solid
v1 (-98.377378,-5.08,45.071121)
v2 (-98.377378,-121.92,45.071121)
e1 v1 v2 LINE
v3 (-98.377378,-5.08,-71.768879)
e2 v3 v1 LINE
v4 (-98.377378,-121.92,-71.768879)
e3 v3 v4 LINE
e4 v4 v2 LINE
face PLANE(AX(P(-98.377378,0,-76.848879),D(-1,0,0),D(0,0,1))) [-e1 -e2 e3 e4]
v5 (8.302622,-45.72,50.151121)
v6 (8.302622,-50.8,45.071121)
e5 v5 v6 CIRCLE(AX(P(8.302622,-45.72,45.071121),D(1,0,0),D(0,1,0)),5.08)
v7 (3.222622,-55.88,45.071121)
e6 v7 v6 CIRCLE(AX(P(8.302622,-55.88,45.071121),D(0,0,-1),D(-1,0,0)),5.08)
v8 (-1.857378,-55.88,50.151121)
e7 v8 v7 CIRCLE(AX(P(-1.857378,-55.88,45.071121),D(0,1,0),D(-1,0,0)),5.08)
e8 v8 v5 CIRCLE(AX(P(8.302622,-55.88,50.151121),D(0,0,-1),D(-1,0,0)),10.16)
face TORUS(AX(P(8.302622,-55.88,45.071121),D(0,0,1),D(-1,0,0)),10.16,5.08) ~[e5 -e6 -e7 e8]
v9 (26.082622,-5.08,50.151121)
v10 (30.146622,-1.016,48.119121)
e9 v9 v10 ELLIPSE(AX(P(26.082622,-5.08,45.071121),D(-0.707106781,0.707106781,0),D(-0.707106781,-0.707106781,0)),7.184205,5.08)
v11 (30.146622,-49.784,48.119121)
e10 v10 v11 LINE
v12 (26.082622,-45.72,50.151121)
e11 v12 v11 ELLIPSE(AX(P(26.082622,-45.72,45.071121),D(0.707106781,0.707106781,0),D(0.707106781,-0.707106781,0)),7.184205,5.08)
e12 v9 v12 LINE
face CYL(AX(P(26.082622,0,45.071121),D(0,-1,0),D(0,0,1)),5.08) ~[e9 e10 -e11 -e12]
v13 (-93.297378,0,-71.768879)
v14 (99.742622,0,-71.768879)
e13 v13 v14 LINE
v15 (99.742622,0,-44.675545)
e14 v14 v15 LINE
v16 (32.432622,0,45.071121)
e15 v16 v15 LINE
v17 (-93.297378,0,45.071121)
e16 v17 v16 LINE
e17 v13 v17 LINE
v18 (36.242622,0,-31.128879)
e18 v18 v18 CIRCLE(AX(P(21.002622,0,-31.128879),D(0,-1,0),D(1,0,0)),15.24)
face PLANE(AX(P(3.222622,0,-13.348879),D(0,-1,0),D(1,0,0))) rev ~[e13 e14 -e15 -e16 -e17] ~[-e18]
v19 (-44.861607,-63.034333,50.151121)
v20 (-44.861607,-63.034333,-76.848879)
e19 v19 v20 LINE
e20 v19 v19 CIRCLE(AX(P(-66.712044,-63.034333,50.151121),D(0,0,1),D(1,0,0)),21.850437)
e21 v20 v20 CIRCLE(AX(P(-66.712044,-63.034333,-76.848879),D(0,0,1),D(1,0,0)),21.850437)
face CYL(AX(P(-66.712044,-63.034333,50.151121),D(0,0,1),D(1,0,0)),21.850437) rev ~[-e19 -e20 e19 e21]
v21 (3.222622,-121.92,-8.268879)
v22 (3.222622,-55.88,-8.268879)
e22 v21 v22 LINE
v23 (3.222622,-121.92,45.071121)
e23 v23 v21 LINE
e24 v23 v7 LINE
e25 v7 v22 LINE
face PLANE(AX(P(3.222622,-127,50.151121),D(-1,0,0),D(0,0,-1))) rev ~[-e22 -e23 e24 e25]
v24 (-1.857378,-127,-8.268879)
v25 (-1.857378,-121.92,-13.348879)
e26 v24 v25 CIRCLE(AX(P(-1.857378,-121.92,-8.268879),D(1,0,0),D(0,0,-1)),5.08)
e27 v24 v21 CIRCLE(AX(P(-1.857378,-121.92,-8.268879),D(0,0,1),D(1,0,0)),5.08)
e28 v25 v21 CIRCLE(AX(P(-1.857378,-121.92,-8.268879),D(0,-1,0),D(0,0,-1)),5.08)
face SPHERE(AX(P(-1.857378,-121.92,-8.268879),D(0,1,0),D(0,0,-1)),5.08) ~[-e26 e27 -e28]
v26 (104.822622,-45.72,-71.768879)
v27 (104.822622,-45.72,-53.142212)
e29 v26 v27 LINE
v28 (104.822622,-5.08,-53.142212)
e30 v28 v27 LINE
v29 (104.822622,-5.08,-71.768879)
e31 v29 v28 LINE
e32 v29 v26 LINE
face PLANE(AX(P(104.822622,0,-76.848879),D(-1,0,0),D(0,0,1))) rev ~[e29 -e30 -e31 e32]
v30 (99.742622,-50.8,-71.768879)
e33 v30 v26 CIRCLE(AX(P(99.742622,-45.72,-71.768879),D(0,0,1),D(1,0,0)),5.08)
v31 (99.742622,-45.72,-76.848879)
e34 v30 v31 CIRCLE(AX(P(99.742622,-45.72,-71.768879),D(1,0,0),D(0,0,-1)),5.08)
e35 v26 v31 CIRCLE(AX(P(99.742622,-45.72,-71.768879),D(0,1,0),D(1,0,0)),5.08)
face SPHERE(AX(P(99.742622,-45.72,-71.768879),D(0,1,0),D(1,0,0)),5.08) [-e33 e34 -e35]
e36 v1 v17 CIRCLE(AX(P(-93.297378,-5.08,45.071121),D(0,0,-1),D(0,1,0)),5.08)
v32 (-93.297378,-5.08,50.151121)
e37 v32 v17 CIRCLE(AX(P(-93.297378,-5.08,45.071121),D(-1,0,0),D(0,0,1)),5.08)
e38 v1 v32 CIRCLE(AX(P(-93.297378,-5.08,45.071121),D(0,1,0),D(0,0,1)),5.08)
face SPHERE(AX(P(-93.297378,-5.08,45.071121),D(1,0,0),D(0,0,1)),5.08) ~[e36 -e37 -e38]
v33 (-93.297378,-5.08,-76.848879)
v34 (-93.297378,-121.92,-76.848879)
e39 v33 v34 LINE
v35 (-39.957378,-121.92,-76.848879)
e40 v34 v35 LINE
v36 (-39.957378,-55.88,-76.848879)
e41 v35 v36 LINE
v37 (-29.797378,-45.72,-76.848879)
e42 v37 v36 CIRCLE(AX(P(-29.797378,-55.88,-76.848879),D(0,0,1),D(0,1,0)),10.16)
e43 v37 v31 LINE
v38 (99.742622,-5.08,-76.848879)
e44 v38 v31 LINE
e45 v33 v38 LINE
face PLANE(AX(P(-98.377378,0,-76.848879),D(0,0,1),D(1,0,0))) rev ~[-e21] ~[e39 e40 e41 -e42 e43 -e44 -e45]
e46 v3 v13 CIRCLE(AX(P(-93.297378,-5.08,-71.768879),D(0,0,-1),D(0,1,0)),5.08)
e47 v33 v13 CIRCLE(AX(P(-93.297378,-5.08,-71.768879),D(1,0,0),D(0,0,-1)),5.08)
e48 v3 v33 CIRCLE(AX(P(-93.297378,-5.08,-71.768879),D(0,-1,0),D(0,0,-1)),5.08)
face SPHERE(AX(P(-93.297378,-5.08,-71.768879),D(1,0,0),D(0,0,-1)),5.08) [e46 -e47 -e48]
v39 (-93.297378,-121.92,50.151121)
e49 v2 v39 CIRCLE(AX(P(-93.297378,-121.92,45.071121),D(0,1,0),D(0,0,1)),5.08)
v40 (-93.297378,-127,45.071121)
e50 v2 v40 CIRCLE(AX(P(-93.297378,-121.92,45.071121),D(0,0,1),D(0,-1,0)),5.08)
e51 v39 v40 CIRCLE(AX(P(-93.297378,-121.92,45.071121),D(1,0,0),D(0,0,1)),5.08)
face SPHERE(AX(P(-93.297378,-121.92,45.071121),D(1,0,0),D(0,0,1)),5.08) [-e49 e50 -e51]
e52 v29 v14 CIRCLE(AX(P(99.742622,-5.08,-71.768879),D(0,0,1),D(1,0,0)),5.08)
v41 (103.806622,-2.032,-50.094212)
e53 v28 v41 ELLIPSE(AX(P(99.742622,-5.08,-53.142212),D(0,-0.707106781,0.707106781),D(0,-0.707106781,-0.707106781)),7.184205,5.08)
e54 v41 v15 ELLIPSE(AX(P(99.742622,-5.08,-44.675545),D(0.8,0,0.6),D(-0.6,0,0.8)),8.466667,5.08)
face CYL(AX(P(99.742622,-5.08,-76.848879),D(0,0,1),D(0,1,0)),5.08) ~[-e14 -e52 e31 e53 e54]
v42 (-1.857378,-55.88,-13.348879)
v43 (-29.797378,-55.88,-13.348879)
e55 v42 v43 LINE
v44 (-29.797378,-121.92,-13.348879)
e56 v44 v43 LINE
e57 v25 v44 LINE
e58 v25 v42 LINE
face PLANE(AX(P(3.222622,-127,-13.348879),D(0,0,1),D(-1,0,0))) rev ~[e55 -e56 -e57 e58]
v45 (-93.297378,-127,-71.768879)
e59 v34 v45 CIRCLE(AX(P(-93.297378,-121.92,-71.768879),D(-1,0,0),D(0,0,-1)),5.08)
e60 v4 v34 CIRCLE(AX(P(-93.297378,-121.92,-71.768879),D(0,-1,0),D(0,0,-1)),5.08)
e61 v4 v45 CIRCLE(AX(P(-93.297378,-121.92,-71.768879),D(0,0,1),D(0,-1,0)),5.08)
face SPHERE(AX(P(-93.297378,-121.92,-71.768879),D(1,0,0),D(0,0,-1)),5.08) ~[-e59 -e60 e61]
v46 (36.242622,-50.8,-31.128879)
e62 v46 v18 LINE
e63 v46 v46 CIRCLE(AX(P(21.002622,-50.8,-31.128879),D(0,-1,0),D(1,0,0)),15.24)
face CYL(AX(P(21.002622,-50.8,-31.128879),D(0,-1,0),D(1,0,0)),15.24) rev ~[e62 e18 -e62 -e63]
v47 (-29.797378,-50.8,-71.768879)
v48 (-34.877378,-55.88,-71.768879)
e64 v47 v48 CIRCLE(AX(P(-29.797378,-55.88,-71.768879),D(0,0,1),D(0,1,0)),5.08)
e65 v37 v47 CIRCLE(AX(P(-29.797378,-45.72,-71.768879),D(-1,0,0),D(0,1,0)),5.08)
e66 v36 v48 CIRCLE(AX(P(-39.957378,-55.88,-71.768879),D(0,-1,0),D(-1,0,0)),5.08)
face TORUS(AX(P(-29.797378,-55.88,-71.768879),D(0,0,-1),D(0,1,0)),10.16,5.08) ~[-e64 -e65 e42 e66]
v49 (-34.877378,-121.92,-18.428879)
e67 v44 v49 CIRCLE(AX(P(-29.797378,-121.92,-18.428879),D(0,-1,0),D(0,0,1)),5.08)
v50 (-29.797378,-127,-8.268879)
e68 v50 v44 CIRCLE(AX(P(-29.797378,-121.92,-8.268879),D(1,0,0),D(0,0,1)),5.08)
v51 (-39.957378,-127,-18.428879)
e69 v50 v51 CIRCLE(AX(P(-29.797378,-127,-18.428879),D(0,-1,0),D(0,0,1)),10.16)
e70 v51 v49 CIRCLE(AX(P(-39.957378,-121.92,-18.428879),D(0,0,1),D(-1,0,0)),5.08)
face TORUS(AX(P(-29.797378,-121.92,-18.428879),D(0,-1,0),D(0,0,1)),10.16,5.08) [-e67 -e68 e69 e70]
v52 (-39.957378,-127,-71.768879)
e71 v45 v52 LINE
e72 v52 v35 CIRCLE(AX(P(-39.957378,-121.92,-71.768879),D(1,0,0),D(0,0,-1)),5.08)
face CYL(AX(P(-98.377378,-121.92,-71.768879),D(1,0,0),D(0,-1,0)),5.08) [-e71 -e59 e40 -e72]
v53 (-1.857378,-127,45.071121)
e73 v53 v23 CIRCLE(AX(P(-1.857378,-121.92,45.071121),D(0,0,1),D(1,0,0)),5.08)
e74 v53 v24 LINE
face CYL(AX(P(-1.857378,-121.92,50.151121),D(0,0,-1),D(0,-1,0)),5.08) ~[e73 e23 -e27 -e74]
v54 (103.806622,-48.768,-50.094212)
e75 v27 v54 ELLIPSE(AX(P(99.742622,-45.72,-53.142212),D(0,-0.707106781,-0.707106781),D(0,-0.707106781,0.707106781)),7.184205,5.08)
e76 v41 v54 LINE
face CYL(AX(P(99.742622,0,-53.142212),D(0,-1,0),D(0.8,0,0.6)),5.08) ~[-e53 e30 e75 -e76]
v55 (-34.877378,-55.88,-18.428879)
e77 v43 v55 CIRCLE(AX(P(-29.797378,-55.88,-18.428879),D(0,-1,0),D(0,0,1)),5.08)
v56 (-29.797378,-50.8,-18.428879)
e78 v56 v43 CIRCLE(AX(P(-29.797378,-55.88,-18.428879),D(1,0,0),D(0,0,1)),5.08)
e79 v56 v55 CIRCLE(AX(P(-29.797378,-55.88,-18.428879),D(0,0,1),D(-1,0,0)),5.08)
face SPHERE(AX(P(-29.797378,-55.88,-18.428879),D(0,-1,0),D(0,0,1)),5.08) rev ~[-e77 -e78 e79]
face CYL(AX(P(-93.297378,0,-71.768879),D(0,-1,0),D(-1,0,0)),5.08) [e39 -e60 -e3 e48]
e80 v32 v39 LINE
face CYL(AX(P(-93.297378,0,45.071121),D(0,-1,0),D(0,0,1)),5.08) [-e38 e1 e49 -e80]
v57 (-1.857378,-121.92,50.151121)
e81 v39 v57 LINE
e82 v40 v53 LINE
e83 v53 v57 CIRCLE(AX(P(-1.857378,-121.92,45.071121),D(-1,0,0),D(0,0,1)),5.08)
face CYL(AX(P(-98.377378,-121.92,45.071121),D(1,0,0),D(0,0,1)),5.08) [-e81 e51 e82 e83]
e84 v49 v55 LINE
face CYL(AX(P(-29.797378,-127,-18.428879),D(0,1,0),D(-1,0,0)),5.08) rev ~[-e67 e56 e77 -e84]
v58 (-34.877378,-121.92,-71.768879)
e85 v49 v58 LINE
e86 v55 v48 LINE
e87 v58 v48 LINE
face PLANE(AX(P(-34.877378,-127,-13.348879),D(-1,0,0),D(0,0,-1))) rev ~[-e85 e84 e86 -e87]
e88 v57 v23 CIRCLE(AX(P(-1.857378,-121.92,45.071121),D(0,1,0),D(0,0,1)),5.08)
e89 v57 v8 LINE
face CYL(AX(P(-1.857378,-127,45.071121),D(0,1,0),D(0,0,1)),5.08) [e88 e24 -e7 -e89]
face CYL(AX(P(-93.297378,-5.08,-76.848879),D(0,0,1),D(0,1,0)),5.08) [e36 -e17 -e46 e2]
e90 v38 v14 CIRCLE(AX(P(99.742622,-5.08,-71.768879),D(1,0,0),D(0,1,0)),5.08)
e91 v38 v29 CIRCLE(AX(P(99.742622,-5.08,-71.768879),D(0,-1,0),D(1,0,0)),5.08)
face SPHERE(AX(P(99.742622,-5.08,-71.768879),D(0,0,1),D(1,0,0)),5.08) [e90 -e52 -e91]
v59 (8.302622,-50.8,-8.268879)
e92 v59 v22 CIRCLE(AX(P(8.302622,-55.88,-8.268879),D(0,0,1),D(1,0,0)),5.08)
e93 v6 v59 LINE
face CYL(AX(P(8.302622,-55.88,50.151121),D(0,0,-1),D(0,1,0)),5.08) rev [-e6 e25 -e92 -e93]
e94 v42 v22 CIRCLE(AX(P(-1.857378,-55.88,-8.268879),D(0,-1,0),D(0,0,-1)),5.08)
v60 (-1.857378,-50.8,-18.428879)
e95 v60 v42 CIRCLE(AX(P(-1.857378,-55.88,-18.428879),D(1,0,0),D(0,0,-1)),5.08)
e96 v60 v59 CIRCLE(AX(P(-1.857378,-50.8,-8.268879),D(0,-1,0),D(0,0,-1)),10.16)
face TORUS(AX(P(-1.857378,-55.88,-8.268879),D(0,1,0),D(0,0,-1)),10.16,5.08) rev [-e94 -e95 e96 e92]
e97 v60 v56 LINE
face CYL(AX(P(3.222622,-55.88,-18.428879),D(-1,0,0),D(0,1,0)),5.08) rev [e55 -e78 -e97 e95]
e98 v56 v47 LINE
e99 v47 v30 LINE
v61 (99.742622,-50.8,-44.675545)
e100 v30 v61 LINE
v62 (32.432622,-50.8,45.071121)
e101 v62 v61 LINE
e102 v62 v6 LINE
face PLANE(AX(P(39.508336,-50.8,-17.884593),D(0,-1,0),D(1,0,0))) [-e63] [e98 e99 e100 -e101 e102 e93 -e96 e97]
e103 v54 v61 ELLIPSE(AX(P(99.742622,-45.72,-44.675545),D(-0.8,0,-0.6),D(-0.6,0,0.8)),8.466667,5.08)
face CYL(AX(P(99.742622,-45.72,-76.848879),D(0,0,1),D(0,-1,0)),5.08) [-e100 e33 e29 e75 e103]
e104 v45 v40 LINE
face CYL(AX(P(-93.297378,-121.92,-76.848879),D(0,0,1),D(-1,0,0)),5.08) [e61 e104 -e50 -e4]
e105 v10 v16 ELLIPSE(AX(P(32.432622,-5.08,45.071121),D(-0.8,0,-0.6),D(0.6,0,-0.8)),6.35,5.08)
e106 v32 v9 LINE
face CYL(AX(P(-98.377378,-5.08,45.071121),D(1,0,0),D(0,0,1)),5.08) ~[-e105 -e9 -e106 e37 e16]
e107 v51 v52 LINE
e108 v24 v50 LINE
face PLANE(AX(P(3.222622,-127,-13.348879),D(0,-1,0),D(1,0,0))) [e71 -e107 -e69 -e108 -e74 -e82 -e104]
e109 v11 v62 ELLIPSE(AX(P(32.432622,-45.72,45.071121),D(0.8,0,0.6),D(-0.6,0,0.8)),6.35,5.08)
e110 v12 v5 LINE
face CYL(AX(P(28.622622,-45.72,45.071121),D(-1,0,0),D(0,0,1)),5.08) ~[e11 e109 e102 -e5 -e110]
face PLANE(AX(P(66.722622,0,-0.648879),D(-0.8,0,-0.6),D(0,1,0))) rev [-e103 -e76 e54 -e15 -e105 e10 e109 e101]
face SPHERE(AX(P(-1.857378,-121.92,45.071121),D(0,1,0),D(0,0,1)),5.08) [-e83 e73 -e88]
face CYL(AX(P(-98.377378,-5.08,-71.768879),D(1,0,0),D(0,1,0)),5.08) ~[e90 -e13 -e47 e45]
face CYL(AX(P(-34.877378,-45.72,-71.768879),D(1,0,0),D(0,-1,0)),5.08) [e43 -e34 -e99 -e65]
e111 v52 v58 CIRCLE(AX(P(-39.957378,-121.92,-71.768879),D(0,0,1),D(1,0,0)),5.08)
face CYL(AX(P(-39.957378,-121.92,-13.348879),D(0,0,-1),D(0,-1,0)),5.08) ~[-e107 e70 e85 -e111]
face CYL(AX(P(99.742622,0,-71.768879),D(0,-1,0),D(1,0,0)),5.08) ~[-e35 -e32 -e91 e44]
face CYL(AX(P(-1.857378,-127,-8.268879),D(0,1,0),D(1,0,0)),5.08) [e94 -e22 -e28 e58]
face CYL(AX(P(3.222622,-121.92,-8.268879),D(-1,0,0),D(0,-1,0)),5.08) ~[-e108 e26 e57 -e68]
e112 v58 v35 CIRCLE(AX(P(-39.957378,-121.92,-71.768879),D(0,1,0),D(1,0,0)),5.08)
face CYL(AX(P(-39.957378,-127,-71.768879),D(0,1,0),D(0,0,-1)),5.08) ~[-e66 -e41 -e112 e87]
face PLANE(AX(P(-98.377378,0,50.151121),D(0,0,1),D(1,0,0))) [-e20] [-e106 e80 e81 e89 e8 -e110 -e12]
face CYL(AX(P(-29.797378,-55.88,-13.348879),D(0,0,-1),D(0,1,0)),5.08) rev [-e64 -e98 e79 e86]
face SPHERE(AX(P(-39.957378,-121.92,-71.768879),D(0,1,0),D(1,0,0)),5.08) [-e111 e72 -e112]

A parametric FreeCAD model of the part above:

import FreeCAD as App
import Part
import Sketcher
from FreeCAD import Vector
Q = App.Units.Quantity


def edges_at(feature, points):
    """Names of the edges that pass closest to the given points."""
    edges = feature.Shape.Edges
    near = lambda p: min(range(len(edges)), key=lambda i: edges[i].distToShape(Part.Vertex(*p))[0])
    return sorted({f"Edge{near(p) + 1}" for p in points})


def add_polygon(sketch, points):
    """Adds a closed chain of lines whose ends are joined by coincident constraints."""
    first, n = sketch.GeometryCount, len(points)
    for a, b in zip(points, points[1:] + points[:1]):
        sketch.addGeometry(Part.LineSegment(App.Vector(*a, 0), App.Vector(*b, 0)), False)
    for i in range(n):
        sketch.addConstraint(Sketcher.Constraint("Coincident", first + i, 2, first + (i + 1) % n, 1))

doc = App.newDocument("Part")
body = doc.addObject("PartDesign::Body", "Body")

# Sketch on XZ plane
sketch1 = body.newObject("Sketcher::SketchObject", "Sketch")
sketch1.AttachmentSupport = (doc.getObject("XZ_Plane"), [""])
sketch1.MapMode = "FlatFace"
add_polygon(sketch1, [(-98, 50), (-98, -77), (105, -77), (105, 50)])  # lines 0-3
sketch1.addConstraint(Sketcher.Constraint("Vertical", 0))
sketch1.addConstraint(Sketcher.Constraint("Horizontal", 1))
sketch1.addConstraint(Sketcher.Constraint("Vertical", 2))
sketch1.addConstraint(Sketcher.Constraint("Horizontal", 3))
sketch1.addConstraint(Sketcher.Constraint("DistanceX", 1, 1, 1, 2, Q("8 in")))
sketch1.addConstraint(Sketcher.Constraint("DistanceY", 0, 2, 0, 1, Q("5 in")))
sketch1.addConstraint(Sketcher.Constraint("DistanceX", 0, 2, -1, 1, 98.377378))
sketch1.addConstraint(Sketcher.Constraint("DistanceY", 0, 2, -1, 1, 76.848879))
pad1 = body.newObject("PartDesign::Pad", "Pad")
pad1.Profile = sketch1
pad1.Length = Q("5 in")

# Sketch on XZ plane
sketch2 = body.newObject("Sketcher::SketchObject", "Sketch001")
sketch2.AttachmentSupport = (doc.getObject("XZ_Plane"), [""])
sketch2.MapMode = "FlatFace"
sketch2.AttachmentOffset = App.Placement(Vector(0, 0, 5 * 25.4), App.Rotation())
add_polygon(sketch2, [(-35, -13), (-35, -77), (105, -77), (105, 50), (3, 50), (3, -13)])  # lines 0-5
sketch2.addConstraint(Sketcher.Constraint("Vertical", 0))
sketch2.addConstraint(Sketcher.Constraint("Horizontal", 1))
sketch2.addConstraint(Sketcher.Constraint("Vertical", 2))
sketch2.addConstraint(Sketcher.Constraint("Horizontal", 3))
sketch2.addConstraint(Sketcher.Constraint("Vertical", 4))
sketch2.addConstraint(Sketcher.Constraint("Horizontal", 5))
sketch2.addConstraint(Sketcher.Constraint("Equal", 0, 4))
sketch2.addConstraint(Sketcher.Constraint("DistanceX", 3, 2, 3, 1, Q("4 in")))
sketch2.addConstraint(Sketcher.Constraint("DistanceY", 2, 1, 2, 2, Q("5 in")))
sketch2.addConstraint(Sketcher.Constraint("DistanceX", 1, 1, 1, 2, Q("5.5 in")))
sketch2.addConstraint(Sketcher.Constraint("DistanceX", 0, 2, -1, 1, 34.877378))
sketch2.addConstraint(Sketcher.Constraint("DistanceY", 0, 2, -1, 1, 76.848879))
pocket1 = body.newObject("PartDesign::Pocket", "Pocket")
pocket1.Profile = sketch2
pocket1.Length = Q("3 in")
doc.recompute()

chamfer = body.newObject("PartDesign::Chamfer", "Chamfer")
chamfer.Base = (pocket1, edges_at(pocket1, [(104.823, -25.4, 50.151)]))
chamfer.ChamferType = "Two distances"
chamfer.Size = Q("3 in")
chamfer.Size2 = Q("4 in")
doc.recompute()

fillet = body.newObject("PartDesign::Fillet", "Fillet")
fillet.Base = (chamfer, edges_at(chamfer, [
    (3.223, -88.9, 50.151),
    (-47.577, -127, 50.151),
    (-34.877, 0, 50.151),
    (28.623, -25.4, 50.151),
    (-98.377, -63.5, 50.151),
    (15.923, -50.8, 50.151),
    (3.223, -88.9, -13.349),
    (-34.877, -88.9, -13.349),
    (-15.827, -127, -13.349),
    (-15.827, -50.8, -13.349),
    (3.223, -127, 18.401),
    (3.223, -50.8, 18.401),
    (-34.877, -88.9, -76.849),
    (-34.877, -127, -45.099),
    (-34.877, -50.8, -45.099),
    (104.823, 0, -64.149),
    (104.823, -25.4, -51.449),
    (104.823, -25.4, -76.849),
    (104.823, -50.8, -64.149),
    (3.223, 0, -76.849),
    (34.973, -50.8, -76.849),
    (-66.627, -127, -76.849),
    (-98.377, -63.5, -76.849),
    (-98.377, 0, -13.349),
    (-98.377, -127, -13.349),
]))
fillet.Radius = Q("0.2 in")

# Sketch on XZ plane
sketch3 = body.newObject("Sketcher::SketchObject", "Sketch002")
sketch3.AttachmentSupport = (doc.getObject("XZ_Plane"), [""])
sketch3.MapMode = "FlatFace"
sketch3.AttachmentOffset = App.Placement(Vector(0, 0, 2 * 25.4), App.Rotation())
sketch3.addGeometry(Part.Circle(Vector(21, -31, 0), Vector(0, 0, 1), 15), False)
sketch3.addConstraint(Sketcher.Constraint("Diameter", 0, Q("1.2 in")))
sketch3.addConstraint(Sketcher.Constraint("DistanceX", -1, 1, 0, 3, 21.002622))
sketch3.addConstraint(Sketcher.Constraint("DistanceY", 0, 3, -1, 1, 31.128879))
pocket2 = body.newObject("PartDesign::Pocket", "Pocket001")
pocket2.Profile = sketch3
pocket2.Type = "ThroughAll"

# Sketch on XY plane
sketch4 = body.newObject("Sketcher::SketchObject", "Sketch003")
sketch4.AttachmentSupport = (doc.getObject("XY_Plane"), [""])
sketch4.MapMode = "FlatFace"
sketch4.AttachmentOffset = App.Placement(Vector(0, 0, 50.151121), App.Rotation())
sketch4.addGeometry(Part.Circle(Vector(-67, -63, 0), Vector(0, 0, 1), 22), False)
sketch4.addConstraint(Sketcher.Constraint("Diameter", 0, 43.700874))
sketch4.addConstraint(Sketcher.Constraint("DistanceX", 0, 3, -1, 1, 66.712044))
sketch4.addConstraint(Sketcher.Constraint("DistanceY", 0, 3, -1, 1, 63.034333))
pocket3 = body.newObject("PartDesign::Pocket", "Pocket002")
pocket3.Profile = sketch4
pocket3.Type = "ThroughAll"

doc.recompute()
